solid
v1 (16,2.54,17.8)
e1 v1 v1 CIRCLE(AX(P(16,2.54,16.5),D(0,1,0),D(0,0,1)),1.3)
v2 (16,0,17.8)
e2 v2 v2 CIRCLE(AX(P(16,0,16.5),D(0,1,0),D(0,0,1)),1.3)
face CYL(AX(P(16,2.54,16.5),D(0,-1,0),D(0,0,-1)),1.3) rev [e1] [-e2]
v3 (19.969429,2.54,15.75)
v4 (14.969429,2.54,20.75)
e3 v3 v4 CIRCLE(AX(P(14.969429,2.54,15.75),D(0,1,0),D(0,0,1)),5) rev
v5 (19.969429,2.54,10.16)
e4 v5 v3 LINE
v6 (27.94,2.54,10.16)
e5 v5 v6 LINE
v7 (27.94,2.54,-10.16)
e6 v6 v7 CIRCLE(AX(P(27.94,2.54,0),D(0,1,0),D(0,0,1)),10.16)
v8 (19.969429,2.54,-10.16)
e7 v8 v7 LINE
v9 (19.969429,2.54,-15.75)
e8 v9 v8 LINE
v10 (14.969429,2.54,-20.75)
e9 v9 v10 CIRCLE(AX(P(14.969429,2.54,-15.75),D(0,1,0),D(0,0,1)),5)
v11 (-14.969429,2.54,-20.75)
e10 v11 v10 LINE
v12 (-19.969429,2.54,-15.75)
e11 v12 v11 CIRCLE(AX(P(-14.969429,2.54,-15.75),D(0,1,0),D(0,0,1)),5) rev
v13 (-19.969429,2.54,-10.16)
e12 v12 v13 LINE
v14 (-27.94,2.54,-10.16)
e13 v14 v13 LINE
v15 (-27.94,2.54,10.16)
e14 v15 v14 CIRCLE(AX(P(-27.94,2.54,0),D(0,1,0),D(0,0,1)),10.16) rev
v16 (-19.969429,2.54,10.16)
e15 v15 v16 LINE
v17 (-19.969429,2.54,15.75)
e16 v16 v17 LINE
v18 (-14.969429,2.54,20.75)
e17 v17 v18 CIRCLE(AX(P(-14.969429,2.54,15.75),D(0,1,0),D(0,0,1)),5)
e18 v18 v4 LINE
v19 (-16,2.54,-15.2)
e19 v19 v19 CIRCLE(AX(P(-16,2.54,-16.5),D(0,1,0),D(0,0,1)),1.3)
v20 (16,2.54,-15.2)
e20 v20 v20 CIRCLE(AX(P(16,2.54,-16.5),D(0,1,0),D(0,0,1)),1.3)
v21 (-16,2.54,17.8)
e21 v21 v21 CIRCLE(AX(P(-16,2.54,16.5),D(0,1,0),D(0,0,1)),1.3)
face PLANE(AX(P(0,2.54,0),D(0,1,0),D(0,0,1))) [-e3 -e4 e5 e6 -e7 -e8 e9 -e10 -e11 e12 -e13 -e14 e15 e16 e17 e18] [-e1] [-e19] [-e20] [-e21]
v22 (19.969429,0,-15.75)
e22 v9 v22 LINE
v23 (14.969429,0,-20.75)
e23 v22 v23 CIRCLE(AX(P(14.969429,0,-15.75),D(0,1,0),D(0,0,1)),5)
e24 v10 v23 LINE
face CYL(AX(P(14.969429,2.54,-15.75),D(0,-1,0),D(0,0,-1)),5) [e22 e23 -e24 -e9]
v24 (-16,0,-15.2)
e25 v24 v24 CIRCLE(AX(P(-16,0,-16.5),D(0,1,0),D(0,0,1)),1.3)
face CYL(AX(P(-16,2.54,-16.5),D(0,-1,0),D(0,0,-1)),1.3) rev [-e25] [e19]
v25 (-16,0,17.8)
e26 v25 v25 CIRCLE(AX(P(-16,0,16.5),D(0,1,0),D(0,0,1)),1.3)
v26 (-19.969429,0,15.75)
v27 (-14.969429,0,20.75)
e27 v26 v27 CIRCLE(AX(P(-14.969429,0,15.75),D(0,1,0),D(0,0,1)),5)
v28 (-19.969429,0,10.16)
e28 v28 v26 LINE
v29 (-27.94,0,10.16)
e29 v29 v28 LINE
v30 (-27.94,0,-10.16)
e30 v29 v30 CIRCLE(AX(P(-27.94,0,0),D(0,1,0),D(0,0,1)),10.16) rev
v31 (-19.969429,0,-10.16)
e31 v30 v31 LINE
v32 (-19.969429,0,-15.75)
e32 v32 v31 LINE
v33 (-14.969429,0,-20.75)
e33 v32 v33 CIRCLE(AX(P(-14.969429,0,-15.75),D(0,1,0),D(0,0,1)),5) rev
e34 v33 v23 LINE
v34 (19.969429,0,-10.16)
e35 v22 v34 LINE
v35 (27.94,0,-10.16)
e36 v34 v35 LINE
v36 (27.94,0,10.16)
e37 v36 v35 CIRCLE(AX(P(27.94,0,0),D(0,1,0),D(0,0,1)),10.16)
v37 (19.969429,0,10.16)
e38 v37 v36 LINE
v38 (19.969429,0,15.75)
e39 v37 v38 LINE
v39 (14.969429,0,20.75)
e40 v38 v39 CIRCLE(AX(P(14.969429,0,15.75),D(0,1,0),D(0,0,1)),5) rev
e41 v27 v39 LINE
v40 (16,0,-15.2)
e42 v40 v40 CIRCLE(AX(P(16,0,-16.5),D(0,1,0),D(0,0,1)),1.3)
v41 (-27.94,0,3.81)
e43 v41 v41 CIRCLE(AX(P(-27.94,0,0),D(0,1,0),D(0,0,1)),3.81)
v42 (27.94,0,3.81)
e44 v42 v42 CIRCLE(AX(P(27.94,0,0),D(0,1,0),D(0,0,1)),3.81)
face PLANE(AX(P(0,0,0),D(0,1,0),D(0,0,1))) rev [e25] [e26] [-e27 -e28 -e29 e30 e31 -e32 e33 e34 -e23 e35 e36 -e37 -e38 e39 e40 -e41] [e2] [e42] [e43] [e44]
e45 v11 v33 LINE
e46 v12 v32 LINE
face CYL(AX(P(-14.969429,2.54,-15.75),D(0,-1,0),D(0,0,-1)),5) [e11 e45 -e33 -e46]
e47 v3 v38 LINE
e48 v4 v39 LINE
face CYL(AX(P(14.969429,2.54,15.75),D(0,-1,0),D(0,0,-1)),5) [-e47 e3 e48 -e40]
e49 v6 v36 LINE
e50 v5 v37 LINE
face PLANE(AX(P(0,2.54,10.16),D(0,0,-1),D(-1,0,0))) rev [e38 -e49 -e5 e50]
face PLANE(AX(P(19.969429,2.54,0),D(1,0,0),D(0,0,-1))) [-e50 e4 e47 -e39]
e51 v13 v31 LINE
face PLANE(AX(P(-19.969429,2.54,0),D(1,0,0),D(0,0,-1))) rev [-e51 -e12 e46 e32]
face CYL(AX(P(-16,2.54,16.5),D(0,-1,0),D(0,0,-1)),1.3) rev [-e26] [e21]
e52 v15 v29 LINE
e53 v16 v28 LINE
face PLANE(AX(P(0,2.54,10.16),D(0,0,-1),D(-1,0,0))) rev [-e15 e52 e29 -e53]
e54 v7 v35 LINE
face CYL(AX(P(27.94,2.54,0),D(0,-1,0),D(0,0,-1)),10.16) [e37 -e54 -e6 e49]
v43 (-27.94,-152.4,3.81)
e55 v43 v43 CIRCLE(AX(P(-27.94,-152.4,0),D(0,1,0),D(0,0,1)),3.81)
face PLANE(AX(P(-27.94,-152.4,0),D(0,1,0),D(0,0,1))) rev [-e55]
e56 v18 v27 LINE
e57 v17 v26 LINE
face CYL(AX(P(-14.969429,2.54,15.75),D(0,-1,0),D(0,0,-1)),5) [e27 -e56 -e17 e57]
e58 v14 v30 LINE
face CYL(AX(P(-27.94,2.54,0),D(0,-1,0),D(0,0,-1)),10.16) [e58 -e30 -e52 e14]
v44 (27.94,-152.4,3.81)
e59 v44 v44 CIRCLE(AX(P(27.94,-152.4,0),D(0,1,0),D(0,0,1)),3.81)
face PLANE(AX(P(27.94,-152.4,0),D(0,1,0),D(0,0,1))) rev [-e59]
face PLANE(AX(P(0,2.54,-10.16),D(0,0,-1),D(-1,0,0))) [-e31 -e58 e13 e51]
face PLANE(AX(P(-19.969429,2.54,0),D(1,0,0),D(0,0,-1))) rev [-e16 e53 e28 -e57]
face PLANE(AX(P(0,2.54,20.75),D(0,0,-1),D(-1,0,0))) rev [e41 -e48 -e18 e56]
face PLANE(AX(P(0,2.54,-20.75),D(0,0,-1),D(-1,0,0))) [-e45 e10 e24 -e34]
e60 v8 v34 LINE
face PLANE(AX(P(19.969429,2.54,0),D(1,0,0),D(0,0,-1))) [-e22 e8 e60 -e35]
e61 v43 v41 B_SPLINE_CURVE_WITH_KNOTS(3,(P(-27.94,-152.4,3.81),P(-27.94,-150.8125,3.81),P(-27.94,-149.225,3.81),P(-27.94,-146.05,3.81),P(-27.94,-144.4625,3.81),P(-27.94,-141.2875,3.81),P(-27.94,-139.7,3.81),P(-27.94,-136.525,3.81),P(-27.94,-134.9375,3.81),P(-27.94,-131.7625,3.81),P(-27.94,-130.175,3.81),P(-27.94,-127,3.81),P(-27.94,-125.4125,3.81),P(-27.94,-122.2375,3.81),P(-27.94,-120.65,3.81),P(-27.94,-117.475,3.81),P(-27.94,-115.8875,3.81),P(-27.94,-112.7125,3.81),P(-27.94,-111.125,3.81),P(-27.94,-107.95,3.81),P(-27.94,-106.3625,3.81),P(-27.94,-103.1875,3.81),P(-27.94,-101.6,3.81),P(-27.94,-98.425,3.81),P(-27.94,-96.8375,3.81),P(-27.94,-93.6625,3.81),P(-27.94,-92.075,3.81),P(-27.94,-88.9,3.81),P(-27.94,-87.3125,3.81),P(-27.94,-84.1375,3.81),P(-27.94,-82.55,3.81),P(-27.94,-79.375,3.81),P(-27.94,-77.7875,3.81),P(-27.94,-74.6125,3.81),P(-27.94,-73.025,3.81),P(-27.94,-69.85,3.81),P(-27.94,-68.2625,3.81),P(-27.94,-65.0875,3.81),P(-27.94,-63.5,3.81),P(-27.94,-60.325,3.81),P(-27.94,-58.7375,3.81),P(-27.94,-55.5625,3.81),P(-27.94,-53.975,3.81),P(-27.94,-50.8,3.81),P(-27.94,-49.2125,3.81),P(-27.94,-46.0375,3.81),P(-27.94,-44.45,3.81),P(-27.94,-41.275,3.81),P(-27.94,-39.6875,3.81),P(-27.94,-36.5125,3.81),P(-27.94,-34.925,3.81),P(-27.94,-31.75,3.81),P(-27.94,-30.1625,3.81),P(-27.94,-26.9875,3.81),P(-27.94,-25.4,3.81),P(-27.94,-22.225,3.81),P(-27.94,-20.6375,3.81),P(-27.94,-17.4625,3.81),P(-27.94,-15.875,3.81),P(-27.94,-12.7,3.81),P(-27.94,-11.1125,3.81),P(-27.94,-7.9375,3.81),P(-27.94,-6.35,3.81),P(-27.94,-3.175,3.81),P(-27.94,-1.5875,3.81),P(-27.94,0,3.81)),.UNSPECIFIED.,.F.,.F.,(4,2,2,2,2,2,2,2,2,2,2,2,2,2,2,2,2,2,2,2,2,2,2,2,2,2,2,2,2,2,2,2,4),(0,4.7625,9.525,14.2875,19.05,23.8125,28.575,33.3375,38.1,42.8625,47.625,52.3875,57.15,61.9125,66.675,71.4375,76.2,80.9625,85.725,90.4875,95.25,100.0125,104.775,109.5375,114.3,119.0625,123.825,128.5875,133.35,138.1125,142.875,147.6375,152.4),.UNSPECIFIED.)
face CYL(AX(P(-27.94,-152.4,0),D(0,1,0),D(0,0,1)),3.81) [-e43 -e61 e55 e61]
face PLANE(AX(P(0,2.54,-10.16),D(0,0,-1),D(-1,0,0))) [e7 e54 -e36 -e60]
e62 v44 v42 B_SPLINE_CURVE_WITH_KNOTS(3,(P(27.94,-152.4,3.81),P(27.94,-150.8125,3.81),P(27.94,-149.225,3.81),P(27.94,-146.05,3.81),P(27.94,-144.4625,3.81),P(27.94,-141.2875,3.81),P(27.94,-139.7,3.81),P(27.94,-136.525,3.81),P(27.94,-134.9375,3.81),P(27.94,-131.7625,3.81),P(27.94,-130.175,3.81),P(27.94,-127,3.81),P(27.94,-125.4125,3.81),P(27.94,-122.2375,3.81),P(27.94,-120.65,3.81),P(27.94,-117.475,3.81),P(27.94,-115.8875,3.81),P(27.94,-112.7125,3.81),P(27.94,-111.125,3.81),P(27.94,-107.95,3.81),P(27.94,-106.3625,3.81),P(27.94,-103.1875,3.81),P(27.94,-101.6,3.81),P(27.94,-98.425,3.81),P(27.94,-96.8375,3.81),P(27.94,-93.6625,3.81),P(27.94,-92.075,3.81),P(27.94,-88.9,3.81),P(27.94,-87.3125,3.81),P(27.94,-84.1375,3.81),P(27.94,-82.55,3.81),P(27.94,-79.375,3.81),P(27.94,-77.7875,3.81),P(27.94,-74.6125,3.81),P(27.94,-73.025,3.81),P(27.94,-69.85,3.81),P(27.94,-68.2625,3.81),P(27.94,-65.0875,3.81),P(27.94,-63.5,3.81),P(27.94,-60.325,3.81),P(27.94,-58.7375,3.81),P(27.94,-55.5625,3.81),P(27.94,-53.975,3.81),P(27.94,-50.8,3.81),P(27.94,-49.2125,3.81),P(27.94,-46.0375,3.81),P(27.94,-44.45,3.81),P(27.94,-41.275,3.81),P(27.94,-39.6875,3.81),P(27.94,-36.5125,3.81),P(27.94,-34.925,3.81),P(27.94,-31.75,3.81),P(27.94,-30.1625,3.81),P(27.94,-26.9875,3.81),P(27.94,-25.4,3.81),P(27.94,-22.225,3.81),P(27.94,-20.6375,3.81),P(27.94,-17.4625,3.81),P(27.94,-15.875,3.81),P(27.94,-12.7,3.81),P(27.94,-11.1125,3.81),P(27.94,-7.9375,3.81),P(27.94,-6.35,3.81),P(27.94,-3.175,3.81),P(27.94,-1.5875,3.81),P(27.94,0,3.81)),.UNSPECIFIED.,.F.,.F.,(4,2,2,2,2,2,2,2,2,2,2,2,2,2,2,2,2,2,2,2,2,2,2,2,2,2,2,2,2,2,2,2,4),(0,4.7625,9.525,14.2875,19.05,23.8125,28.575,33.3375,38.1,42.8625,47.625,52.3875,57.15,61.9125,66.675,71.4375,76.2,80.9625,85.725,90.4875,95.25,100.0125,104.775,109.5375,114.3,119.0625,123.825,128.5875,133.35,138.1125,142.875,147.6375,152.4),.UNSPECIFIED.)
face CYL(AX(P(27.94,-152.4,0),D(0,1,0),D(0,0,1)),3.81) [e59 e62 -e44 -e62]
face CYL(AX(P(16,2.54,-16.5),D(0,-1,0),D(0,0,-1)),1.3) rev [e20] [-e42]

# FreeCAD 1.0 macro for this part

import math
import FreeCAD as App
import Part
import Sketcher
from FreeCAD import Vector
Q = App.Units.Quantity

doc = App.newDocument("Part")
params = doc.addObject("Spreadsheet::Sheet", "Params")
for row, (alias, value) in enumerate([
    ("sketch1_radius", "0.4 in"),
    ("pad1_length", "0.1 in"),
    ("sketch2_diameter", "0.3 in"),
    ("pad2_length", "6 in"),
], start=1):
    params.set(f"A{row}", alias)
    params.set(f"B{row}", "=" + value)
    params.setAlias(f"B{row}", alias)

body = doc.addObject("PartDesign::Body", "Body")

# Sketch on XZ plane
sketch1 = body.newObject("Sketcher::SketchObject", "Sketch")
sketch1.AttachmentSupport = (doc.getObject("XZ_Plane"), [""])
sketch1.MapMode = "FlatFace"
sketch1.addGeometry([
    Part.LineSegment(Vector(-27.94, 10.16, 0), Vector(-19.969429, 10.16, 0)),  # 0
    Part.LineSegment(Vector(-19.969429, 10.16, 0), Vector(-19.969429, 15.75, 0)),  # 1
    Part.ArcOfCircle(Part.Circle(Vector(-14.969429, 15.75, 0), Vector(0, 0, 1), 5), math.radians(90), math.radians(180)),  # 2
    Part.LineSegment(Vector(-14.969429, 20.75, 0), Vector(14.969429, 20.75, 0)),  # 3
    Part.ArcOfCircle(Part.Circle(Vector(14.969429, 15.75, 0), Vector(0, 0, 1), 5), math.radians(0), math.radians(90)),  # 4
    Part.LineSegment(Vector(19.969429, 15.75, 0), Vector(19.969429, 10.16, 0)),  # 5
    Part.LineSegment(Vector(19.969429, 10.16, 0), Vector(27.94, 10.16, 0)),  # 6
    Part.ArcOfCircle(Part.Circle(Vector(27.94, 0, 0), Vector(0, 0, 1), 10.16), math.radians(-90), math.radians(90)),  # 7
    Part.LineSegment(Vector(27.94, -10.16, 0), Vector(19.969429, -10.16, 0)),  # 8
    Part.LineSegment(Vector(19.969429, -10.16, 0), Vector(19.969429, -15.75, 0)),  # 9
    Part.ArcOfCircle(Part.Circle(Vector(14.969429, -15.75, 0), Vector(0, 0, 1), 5), math.radians(-90), math.radians(0)),  # 10
    Part.LineSegment(Vector(14.969429, -20.75, 0), Vector(-14.969429, -20.75, 0)),  # 11
    Part.ArcOfCircle(Part.Circle(Vector(-14.969429, -15.75, 0), Vector(0, 0, 1), 5), math.radians(180), math.radians(270)),  # 12
    Part.LineSegment(Vector(-19.969429, -15.75, 0), Vector(-19.969429, -10.16, 0)),  # 13
    Part.LineSegment(Vector(-19.969429, -10.16, 0), Vector(-27.94, -10.16, 0)),  # 14
    Part.ArcOfCircle(Part.Circle(Vector(-27.94, 0, 0), Vector(0, 0, 1), 10.16), math.radians(90), math.radians(270)),  # 15
    Part.Circle(Vector(16, -16.5, 0), Vector(0, 0, 1), 1.3),  # 16
    Part.Circle(Vector(-16, -16.5, 0), Vector(0, 0, 1), 1.3),  # 17
    Part.Circle(Vector(16, 16.5, 0), Vector(0, 0, 1), 1.3),  # 18
    Part.Circle(Vector(-16, 16.5, 0), Vector(0, 0, 1), 1.3),  # 19
], False)
sketch1.addConstraint([
    Sketcher.Constraint("Coincident", 0, 2, 1, 1),
    Sketcher.Constraint("Tangent", 1, 2, 2, 2),
    Sketcher.Constraint("Tangent", 2, 1, 3, 1),
    Sketcher.Constraint("Tangent", 3, 2, 4, 2),
    Sketcher.Constraint("Tangent", 4, 1, 5, 1),
    Sketcher.Constraint("Coincident", 5, 2, 6, 1),
    Sketcher.Constraint("Tangent", 6, 2, 7, 2),
    Sketcher.Constraint("Tangent", 7, 1, 8, 1),
    Sketcher.Constraint("Coincident", 8, 2, 9, 1),
    Sketcher.Constraint("Tangent", 9, 2, 10, 2),
    Sketcher.Constraint("Tangent", 10, 1, 11, 1),
    Sketcher.Constraint("Tangent", 11, 2, 12, 2),
    Sketcher.Constraint("Tangent", 12, 1, 13, 1),
    Sketcher.Constraint("Coincident", 13, 2, 14, 1),
    Sketcher.Constraint("Tangent", 14, 2, 15, 2),
    Sketcher.Constraint("Tangent", 15, 1, 0, 1),
    Sketcher.Constraint("Horizontal", 0),
    Sketcher.Constraint("Vertical", 1),
    Sketcher.Constraint("Horizontal", 3),
    Sketcher.Constraint("Vertical", 5),
    Sketcher.Constraint("Horizontal", 6),
    Sketcher.Constraint("Horizontal", 8),
    Sketcher.Constraint("Vertical", 9),
    Sketcher.Constraint("Horizontal", 11),
    Sketcher.Constraint("Vertical", 13),
    Sketcher.Constraint("Horizontal", 14),
    Sketcher.Constraint("Equal", 2, 4),
    Sketcher.Constraint("Equal", 4, 10),
    Sketcher.Constraint("Equal", 10, 12),
    Sketcher.Constraint("Equal", 7, 15),
    Sketcher.Constraint("Equal", 16, 17),
    Sketcher.Constraint("Equal", 17, 18),
    Sketcher.Constraint("Equal", 18, 19),
    Sketcher.Constraint("Symmetric", 2, 3, 10, 3, -1, 1),
    Sketcher.Constraint("Symmetric", 7, 3, 15, 3, -1, 1),
    Sketcher.Constraint("Symmetric", 17, 3, 18, 3, -1, 1),
    Sketcher.Constraint("Symmetric", 16, 3, 19, 3, -1, 1),
    Sketcher.Constraint("Symmetric", 16, 3, 17, 3, -2),
    Sketcher.Constraint("Symmetric", 0, 2, 5, 2, -2),
    Sketcher.Constraint("Vertical", 2, 3, 12, 3),
    Sketcher.Constraint("Radius", 7, Q("0.4 in")),
    Sketcher.Constraint("DistanceX", -1, 1, 7, 3, Q("1.1 in")),
    Sketcher.Constraint("Diameter", 16, Q("2.6 mm")),
    Sketcher.Constraint("Radius", 2, Q("5 mm")),
    Sketcher.Constraint("DistanceY", 1, 1, 1, 2, Q("5.59 mm")),
    Sketcher.Constraint("DistanceX", 0, 1, 0, 2, Q("7.970571 mm")),
    Sketcher.Constraint("DistanceX", -1, 1, 16, 3, Q("16 mm")),
    Sketcher.Constraint("DistanceY", 16, 3, -1, 1, Q("16.5 mm")),
])
sketch1.setExpression("Constraints[40]", "Params.sketch1_radius")
pad1 = body.newObject("PartDesign::Pad", "Pad")
pad1.Profile = sketch1
pad1.setExpression("Length", "Params.pad1_length")
pad1.Reversed = True

# Sketch on XZ plane
sketch2 = body.newObject("Sketcher::SketchObject", "Sketch001")
sketch2.AttachmentSupport = (doc.getObject("XZ_Plane"), [""])
sketch2.MapMode = "FlatFace"
sketch2.addGeometry([
    Part.Circle(Vector(-27.94, 0, 0), Vector(0, 0, 1), 3.81),
    Part.Circle(Vector(27.94, 0, 0), Vector(0, 0, 1), 3.81),
], False)
sketch2.addConstraint([
    Sketcher.Constraint("Equal", 0, 1),
    Sketcher.Constraint("Symmetric", 0, 3, 1, 3, -1, 1),
    Sketcher.Constraint("PointOnObject", 0, 3, -1),
    Sketcher.Constraint("Diameter", 0, Q("0.3 in")),
    Sketcher.Constraint("DistanceX", 0, 3, -1, 1, Q("1.1 in")),
])
sketch2.setExpression("Constraints[3]", "Params.sketch2_diameter")
pad2 = body.newObject("PartDesign::Pad", "Pad001")
pad2.Profile = sketch2
pad2.setExpression("Length", "Params.pad2_length")

doc.recompute()
